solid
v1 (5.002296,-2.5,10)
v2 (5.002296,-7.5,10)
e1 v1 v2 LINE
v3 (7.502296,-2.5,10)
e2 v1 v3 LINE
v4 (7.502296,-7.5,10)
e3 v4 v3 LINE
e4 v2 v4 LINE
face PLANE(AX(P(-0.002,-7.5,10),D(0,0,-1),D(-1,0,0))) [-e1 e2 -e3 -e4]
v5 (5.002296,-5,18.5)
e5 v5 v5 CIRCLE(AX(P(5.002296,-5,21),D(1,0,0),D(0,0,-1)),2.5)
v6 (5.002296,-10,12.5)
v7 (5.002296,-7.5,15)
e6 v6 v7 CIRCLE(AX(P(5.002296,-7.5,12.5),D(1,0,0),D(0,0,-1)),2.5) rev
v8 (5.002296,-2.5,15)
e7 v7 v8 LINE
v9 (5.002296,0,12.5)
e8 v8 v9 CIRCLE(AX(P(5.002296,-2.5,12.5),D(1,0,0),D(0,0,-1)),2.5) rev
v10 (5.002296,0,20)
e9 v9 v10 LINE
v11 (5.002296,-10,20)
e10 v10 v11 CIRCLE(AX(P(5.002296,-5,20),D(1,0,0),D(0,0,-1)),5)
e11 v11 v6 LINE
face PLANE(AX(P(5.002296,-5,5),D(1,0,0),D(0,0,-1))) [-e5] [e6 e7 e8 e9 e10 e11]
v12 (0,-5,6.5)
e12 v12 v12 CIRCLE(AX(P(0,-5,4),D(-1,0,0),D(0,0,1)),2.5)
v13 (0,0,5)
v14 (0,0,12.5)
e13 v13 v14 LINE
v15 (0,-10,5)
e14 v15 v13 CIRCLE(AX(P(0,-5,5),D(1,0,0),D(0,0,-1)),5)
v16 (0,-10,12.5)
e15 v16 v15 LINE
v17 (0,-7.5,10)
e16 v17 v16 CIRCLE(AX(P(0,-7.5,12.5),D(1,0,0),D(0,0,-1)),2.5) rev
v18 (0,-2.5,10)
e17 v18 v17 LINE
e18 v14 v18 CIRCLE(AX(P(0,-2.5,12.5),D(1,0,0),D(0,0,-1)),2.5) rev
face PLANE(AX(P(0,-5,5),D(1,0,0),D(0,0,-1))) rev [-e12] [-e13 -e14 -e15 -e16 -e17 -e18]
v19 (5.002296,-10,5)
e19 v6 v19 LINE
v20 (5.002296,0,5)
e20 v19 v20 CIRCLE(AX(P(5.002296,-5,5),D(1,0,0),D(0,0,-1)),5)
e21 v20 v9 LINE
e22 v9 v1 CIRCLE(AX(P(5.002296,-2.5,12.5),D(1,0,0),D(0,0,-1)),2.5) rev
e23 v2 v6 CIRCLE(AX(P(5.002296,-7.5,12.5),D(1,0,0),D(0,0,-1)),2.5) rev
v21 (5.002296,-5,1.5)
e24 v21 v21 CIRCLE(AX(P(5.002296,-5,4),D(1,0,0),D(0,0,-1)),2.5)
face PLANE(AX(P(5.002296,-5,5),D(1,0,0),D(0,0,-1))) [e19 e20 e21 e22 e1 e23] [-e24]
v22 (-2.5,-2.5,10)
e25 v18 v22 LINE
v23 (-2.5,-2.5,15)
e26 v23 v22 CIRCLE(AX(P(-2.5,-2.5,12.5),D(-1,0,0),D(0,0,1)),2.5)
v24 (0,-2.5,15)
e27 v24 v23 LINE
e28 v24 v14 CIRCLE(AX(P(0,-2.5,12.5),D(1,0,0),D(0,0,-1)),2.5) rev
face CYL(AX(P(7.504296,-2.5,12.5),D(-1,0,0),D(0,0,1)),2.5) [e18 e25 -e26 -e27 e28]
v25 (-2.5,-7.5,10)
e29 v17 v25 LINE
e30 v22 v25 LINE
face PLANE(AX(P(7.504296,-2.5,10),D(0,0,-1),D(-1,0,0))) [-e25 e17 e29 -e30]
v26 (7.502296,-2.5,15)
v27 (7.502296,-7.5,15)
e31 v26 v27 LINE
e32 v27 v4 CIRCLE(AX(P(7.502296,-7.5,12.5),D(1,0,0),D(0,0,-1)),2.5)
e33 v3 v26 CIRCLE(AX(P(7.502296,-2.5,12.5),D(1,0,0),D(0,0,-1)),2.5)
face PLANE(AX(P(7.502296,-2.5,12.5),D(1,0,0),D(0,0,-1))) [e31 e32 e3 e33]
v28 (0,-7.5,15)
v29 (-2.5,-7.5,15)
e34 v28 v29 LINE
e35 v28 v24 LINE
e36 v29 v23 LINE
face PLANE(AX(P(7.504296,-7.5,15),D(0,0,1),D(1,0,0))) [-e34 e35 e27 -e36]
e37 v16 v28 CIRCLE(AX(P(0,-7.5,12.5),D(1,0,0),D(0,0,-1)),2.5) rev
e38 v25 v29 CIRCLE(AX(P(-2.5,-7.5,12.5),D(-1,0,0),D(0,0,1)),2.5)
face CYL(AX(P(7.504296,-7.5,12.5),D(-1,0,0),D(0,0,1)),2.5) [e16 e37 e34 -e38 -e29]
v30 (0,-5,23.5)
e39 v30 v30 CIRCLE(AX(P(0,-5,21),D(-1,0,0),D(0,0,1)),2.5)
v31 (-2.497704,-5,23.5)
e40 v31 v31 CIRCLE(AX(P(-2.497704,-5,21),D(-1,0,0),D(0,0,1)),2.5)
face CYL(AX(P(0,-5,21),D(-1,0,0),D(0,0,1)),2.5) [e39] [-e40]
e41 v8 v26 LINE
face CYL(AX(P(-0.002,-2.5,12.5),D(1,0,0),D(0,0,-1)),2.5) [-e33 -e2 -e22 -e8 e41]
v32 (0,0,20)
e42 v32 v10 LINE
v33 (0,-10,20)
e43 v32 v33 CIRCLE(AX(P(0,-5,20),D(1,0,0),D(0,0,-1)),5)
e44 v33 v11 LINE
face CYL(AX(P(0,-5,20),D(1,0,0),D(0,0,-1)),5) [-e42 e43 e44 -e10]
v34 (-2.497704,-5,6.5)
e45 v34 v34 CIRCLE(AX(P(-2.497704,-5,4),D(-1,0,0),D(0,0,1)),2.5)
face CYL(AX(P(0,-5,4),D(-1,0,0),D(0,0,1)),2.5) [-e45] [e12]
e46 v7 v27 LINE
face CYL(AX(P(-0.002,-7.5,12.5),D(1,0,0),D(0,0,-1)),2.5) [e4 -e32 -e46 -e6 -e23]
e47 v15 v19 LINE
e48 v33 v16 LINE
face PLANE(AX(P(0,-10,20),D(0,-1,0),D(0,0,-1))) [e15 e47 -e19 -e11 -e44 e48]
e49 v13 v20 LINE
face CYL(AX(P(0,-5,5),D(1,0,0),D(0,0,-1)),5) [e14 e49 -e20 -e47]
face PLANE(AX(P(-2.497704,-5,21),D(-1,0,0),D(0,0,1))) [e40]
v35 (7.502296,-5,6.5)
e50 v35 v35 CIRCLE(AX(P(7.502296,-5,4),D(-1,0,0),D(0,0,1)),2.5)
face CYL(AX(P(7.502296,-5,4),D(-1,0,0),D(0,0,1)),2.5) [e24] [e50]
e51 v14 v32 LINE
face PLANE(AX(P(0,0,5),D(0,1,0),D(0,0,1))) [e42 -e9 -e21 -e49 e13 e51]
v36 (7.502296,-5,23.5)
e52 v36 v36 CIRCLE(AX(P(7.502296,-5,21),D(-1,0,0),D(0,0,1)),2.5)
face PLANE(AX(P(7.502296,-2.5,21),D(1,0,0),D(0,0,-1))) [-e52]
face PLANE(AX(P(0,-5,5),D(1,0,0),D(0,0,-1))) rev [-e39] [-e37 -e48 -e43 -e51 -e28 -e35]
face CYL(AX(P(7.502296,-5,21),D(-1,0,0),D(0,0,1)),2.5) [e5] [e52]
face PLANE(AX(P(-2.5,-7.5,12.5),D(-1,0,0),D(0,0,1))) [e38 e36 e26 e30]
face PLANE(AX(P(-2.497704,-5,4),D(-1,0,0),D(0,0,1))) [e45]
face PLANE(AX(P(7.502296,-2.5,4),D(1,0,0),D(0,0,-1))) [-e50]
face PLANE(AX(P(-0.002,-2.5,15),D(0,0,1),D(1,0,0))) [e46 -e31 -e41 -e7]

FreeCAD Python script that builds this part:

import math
import FreeCAD as App
import Part
import Sketcher
from FreeCAD import Vector
Q = App.Units.Quantity

doc = App.newDocument("Part")
body = doc.addObject("PartDesign::Body", "Body")

sketch1 = body.newObject("Sketcher::SketchObject", "Sketch")
sketch1.AttachmentSupport = (doc.getObject("YZ_Plane"), [""])
sketch1.MapMode = "FlatFace"
sketch1.AttachmentOffset = App.Placement(Vector(0, 0, 5.002296), App.Rotation())
sketch1.addGeometry(Part.LineSegment(Vector(0, 5, 0), Vector(0, 20, 0)), False)
sketch1.addGeometry(Part.ArcOfCircle(Part.Circle(Vector(-5, 20, 0), Vector(0, 0, 1), 5), math.radians(0), math.radians(180)), False)
sketch1.addGeometry(Part.LineSegment(Vector(-10, 20, 0), Vector(-10, 5, 0)), False)
sketch1.addGeometry(Part.ArcOfCircle(Part.Circle(Vector(-5, 5, 0), Vector(0, 0, 1), 5), math.radians(180), math.radians(360)), False)
sketch1.addConstraint(Sketcher.Constraint("Tangent", 0, 2, 1, 1))
sketch1.addConstraint(Sketcher.Constraint("Tangent", 1, 2, 2, 1))
sketch1.addConstraint(Sketcher.Constraint("Tangent", 2, 2, 3, 1))
sketch1.addConstraint(Sketcher.Constraint("Tangent", 3, 2, 0, 1))
sketch1.addConstraint(Sketcher.Constraint("Vertical", 0))
sketch1.addConstraint(Sketcher.Constraint("Vertical", 2))
sketch1.addConstraint(Sketcher.Constraint("PointOnObject", 0, 2, -2))
sketch1.addConstraint(Sketcher.Constraint("Radius", 1, Q("5 mm")))
sketch1.addConstraint(Sketcher.Constraint("DistanceY", 0, 1, 0, 2, Q("15 mm")))
sketch1.addConstraint(Sketcher.Constraint("DistanceY", -1, 1, 1, 3, Q("20 mm")))
pad1 = body.newObject("PartDesign::Pad", "Pad")
pad1.Profile = sketch1
pad1.Length = 5.002296
pad1.Reversed = True

sketch2 = body.newObject("Sketcher::SketchObject", "Sketch001")
sketch2.AttachmentSupport = (doc.getObject("YZ_Plane"), [""])
sketch2.MapMode = "FlatFace"
sketch2.AttachmentOffset = App.Placement(Vector(0, 0, 7.502296), App.Rotation())
sketch2.addGeometry(Part.LineSegment(Vector(-2.5, 15, 0), Vector(-7.5, 15, 0)), False)
sketch2.addGeometry(Part.ArcOfCircle(Part.Circle(Vector(-7.5, 12.5, 0), Vector(0, 0, 1), 2.5), math.radians(90), math.radians(270)), False)
sketch2.addGeometry(Part.LineSegment(Vector(-7.5, 10, 0), Vector(-2.5, 10, 0)), False)
sketch2.addGeometry(Part.ArcOfCircle(Part.Circle(Vector(-2.5, 12.5, 0), Vector(0, 0, 1), 2.5), math.radians(-90), math.radians(90)), False)
sketch2.addConstraint(Sketcher.Constraint("Tangent", 0, 2, 1, 1))
sketch2.addConstraint(Sketcher.Constraint("Tangent", 1, 2, 2, 1))
sketch2.addConstraint(Sketcher.Constraint("Tangent", 2, 2, 3, 1))
sketch2.addConstraint(Sketcher.Constraint("Tangent", 3, 2, 0, 1))
sketch2.addConstraint(Sketcher.Constraint("Horizontal", 0))
sketch2.addConstraint(Sketcher.Constraint("Horizontal", 2))
sketch2.addConstraint(Sketcher.Constraint("Radius", 1, Q("2.5 mm")))
sketch2.addConstraint(Sketcher.Constraint("DistanceX", 0, 2, 0, 1, Q("5 mm")))
sketch2.addConstraint(Sketcher.Constraint("DistanceY", -1, 1, 0, 2, Q("15 mm")))
sketch2.addConstraint(Sketcher.Constraint("DistanceX", 1, 3, -1, 1, Q("7.5 mm")))
pad2 = body.newObject("PartDesign::Pad", "Pad001")
pad2.Profile = sketch2
pad2.Type = "UpToFirst"
pad2.Reversed = True

sketch3 = body.newObject("Sketcher::SketchObject", "Sketch002")
sketch3.AttachmentSupport = (doc.getObject("YZ_Plane"), [""])
sketch3.MapMode = "FlatFace"
sketch3.AttachmentOffset = App.Placement(Vector(0, 0, -2.5), App.Rotation())
sketch3.addGeometry(Part.LineSegment(Vector(-7.5, 15, 0), Vector(-2.5, 15, 0)), False)
sketch3.addGeometry(Part.ArcOfCircle(Part.Circle(Vector(-2.5, 12.5, 0), Vector(0, 0, 1), 2.5), math.radians(-90), math.radians(90)), False)
sketch3.addGeometry(Part.LineSegment(Vector(-2.5, 10, 0), Vector(-7.5, 10, 0)), False)
sketch3.addGeometry(Part.ArcOfCircle(Part.Circle(Vector(-7.5, 12.5, 0), Vector(0, 0, 1), 2.5), math.radians(90), math.radians(270)), False)
sketch3.addConstraint(Sketcher.Constraint("Tangent", 0, 2, 1, 2))
sketch3.addConstraint(Sketcher.Constraint("Tangent", 1, 1, 2, 1))
sketch3.addConstraint(Sketcher.Constraint("Tangent", 2, 2, 3, 2))
sketch3.addConstraint(Sketcher.Constraint("Tangent", 3, 1, 0, 1))
sketch3.addConstraint(Sketcher.Constraint("Horizontal", 0))
sketch3.addConstraint(Sketcher.Constraint("Horizontal", 2))
sketch3.addConstraint(Sketcher.Constraint("Radius", 1, Q("2.5 mm")))
sketch3.addConstraint(Sketcher.Constraint("DistanceX", 0, 1, 0, 2, Q("5 mm")))
sketch3.addConstraint(Sketcher.Constraint("DistanceY", -1, 1, 0, 2, Q("15 mm")))
sketch3.addConstraint(Sketcher.Constraint("DistanceX", 1, 3, -1, 1, Q("2.5 mm")))
pad3 = body.newObject("PartDesign::Pad", "Pad002")
pad3.Profile = sketch3
pad3.Type = "UpToFirst"

sketch4 = body.newObject("Sketcher::SketchObject", "Sketch003")
sketch4.AttachmentSupport = (doc.getObject("XY_Plane"), [""])
sketch4.MapMode = "FlatFace"
sketch4.AttachmentOffset = App.Placement(Vector(0, 0, 4), App.Rotation())
sketch4.addGeometry(Part.LineSegment(Vector(0, -2.5, 0), Vector(0, -5, 0)), False)
sketch4.addGeometry(Part.LineSegment(Vector(0, -5, 0), Vector(-2.5, -5, 0)), False)
sketch4.addGeometry(Part.LineSegment(Vector(-2.5, -5, 0), Vector(-2.5, -2.5, 0)), False)
sketch4.addGeometry(Part.LineSegment(Vector(-2.5, -2.5, 0), Vector(0, -2.5, 0)), False)
sketch4.addGeometry(Part.LineSegment(Vector(0, -5, 0), Vector(-2.5, -5, 0)), True)
sketch4.addConstraint(Sketcher.Constraint("Coincident", 0, 2, 1, 1))
sketch4.addConstraint(Sketcher.Constraint("Coincident", 1, 2, 2, 1))
sketch4.addConstraint(Sketcher.Constraint("Coincident", 2, 2, 3, 1))
sketch4.addConstraint(Sketcher.Constraint("Coincident", 3, 2, 0, 1))
sketch4.addConstraint(Sketcher.Constraint("Vertical", 0))
sketch4.addConstraint(Sketcher.Constraint("Horizontal", 1))
sketch4.addConstraint(Sketcher.Constraint("Vertical", 2))
sketch4.addConstraint(Sketcher.Constraint("Horizontal", 3))
sketch4.addConstraint(Sketcher.Constraint("Horizontal", 4))
sketch4.addConstraint(Sketcher.Constraint("Coincident", 4, 1, 0, 2))
sketch4.addConstraint(Sketcher.Constraint("PointOnObject", 0, 2, -2))
sketch4.addConstraint(Sketcher.Constraint("Vertical", 2, 2, 4, 2))
sketch4.addConstraint(Sketcher.Constraint("DistanceY", 0, 2, 0, 1, Q("2.5 mm")))
sketch4.addConstraint(Sketcher.Constraint("DistanceY", 0, 2, -1, 1, Q("5 mm")))
sketch4.addConstraint(Sketcher.Constraint("DistanceX", 1, 2, 1, 1, Q("2.497704 mm")))
revolution = body.newObject("PartDesign::Revolution", "Revolution")
revolution.Profile = sketch4
revolution.ReferenceAxis = (sketch4, ["Axis0"])
revolution.Angle = 360

sketch5 = body.newObject("Sketcher::SketchObject", "Sketch004")
sketch5.AttachmentSupport = (doc.getObject("XY_Plane"), [""])
sketch5.MapMode = "FlatFace"
sketch5.AttachmentOffset = App.Placement(Vector(0, 0, 4), App.Rotation())
sketch5.addGeometry(Part.LineSegment(Vector(7.5, -2.5, 0), Vector(7.5, -5, 0)), False)
sketch5.addGeometry(Part.LineSegment(Vector(7.5, -5, 0), Vector(5, -5, 0)), False)
sketch5.addGeometry(Part.LineSegment(Vector(5, -5, 0), Vector(5, -2.5, 0)), False)
sketch5.addGeometry(Part.LineSegment(Vector(5, -2.5, 0), Vector(7.5, -2.5, 0)), False)
sketch5.addGeometry(Part.LineSegment(Vector(7.5, -5, 0), Vector(5, -5, 0)), True)
sketch5.addConstraint(Sketcher.Constraint("Coincident", 0, 2, 1, 1))
sketch5.addConstraint(Sketcher.Constraint("Coincident", 1, 2, 2, 1))
sketch5.addConstraint(Sketcher.Constraint("Coincident", 2, 2, 3, 1))
sketch5.addConstraint(Sketcher.Constraint("Coincident", 3, 2, 0, 1))
sketch5.addConstraint(Sketcher.Constraint("Vertical", 0))
sketch5.addConstraint(Sketcher.Constraint("Horizontal", 1))
sketch5.addConstraint(Sketcher.Constraint("Vertical", 2))
sketch5.addConstraint(Sketcher.Constraint("Horizontal", 3))
sketch5.addConstraint(Sketcher.Constraint("Horizontal", 4))
sketch5.addConstraint(Sketcher.Constraint("Coincident", 4, 1, 0, 2))
sketch5.addConstraint(Sketcher.Constraint("Vertical", 2, 2, 4, 2))
sketch5.addConstraint(Sketcher.Constraint("Equal", 4, 0))
sketch5.addConstraint(Sketcher.Constraint("DistanceX", 1, 2, 1, 1, Q("2.5 mm")))
sketch5.addConstraint(Sketcher.Constraint("DistanceY", 0, 2, -1, 1, Q("5 mm")))
sketch5.addConstraint(Sketcher.Constraint("DistanceX", -1, 1, 0, 2, Q("7.502296 mm")))
revolution2 = body.newObject("PartDesign::Revolution", "Revolution001")
revolution2.Profile = sketch5
revolution2.ReferenceAxis = (sketch5, ["Axis0"])
revolution2.Angle = 360

sketch6 = body.newObject("Sketcher::SketchObject", "Sketch005")
sketch6.AttachmentSupport = (doc.getObject("XY_Plane"), [""])
sketch6.MapMode = "FlatFace"
sketch6.AttachmentOffset = App.Placement(Vector(0, 0, 21), App.Rotation())
sketch6.addGeometry(Part.LineSegment(Vector(7.5, -2.5, 0), Vector(7.5, -5, 0)), False)
sketch6.addGeometry(Part.LineSegment(Vector(7.5, -5, 0), Vector(5, -5, 0)), False)
sketch6.addGeometry(Part.LineSegment(Vector(5, -5, 0), Vector(5, -2.5, 0)), False)
sketch6.addGeometry(Part.LineSegment(Vector(5, -2.5, 0), Vector(7.5, -2.5, 0)), False)
sketch6.addGeometry(Part.LineSegment(Vector(7.5, -5, 0), Vector(5, -5, 0)), True)
sketch6.addConstraint(Sketcher.Constraint("Coincident", 0, 2, 1, 1))
sketch6.addConstraint(Sketcher.Constraint("Coincident", 1, 2, 2, 1))
sketch6.addConstraint(Sketcher.Constraint("Coincident", 2, 2, 3, 1))
sketch6.addConstraint(Sketcher.Constraint("Coincident", 3, 2, 0, 1))
sketch6.addConstraint(Sketcher.Constraint("Vertical", 0))
sketch6.addConstraint(Sketcher.Constraint("Horizontal", 1))
sketch6.addConstraint(Sketcher.Constraint("Vertical", 2))
sketch6.addConstraint(Sketcher.Constraint("Horizontal", 3))
sketch6.addConstraint(Sketcher.Constraint("Horizontal", 4))
sketch6.addConstraint(Sketcher.Constraint("Coincident", 4, 1, 0, 2))
sketch6.addConstraint(Sketcher.Constraint("Vertical", 2, 2, 4, 2))
sketch6.addConstraint(Sketcher.Constraint("Equal", 4, 0))
sketch6.addConstraint(Sketcher.Constraint("DistanceX", 1, 2, 1, 1, Q("2.5 mm")))
sketch6.addConstraint(Sketcher.Constraint("DistanceY", 0, 2, -1, 1, Q("5 mm")))
sketch6.addConstraint(Sketcher.Constraint("DistanceX", -1, 1, 0, 2, Q("7.502296 mm")))
revolution3 = body.newObject("PartDesign::Revolution", "Revolution002")
revolution3.Profile = sketch6
revolution3.ReferenceAxis = (sketch6, ["Axis0"])
revolution3.Angle = 360

sketch7 = body.newObject("Sketcher::SketchObject", "Sketch006")
sketch7.AttachmentSupport = (doc.getObject("XY_Plane"), [""])
sketch7.MapMode = "FlatFace"
sketch7.AttachmentOffset = App.Placement(Vector(0, 0, 21), App.Rotation())
sketch7.addGeometry(Part.LineSegment(Vector(0, -2.5, 0), Vector(0, -5, 0)), False)
sketch7.addGeometry(Part.LineSegment(Vector(0, -5, 0), Vector(-2.5, -5, 0)), False)
sketch7.addGeometry(Part.LineSegment(Vector(-2.5, -5, 0), Vector(-2.5, -2.5, 0)), False)
sketch7.addGeometry(Part.LineSegment(Vector(-2.5, -2.5, 0), Vector(0, -2.5, 0)), False)
sketch7.addGeometry(Part.LineSegment(Vector(0, -5, 0), Vector(-2.5, -5, 0)), True)
sketch7.addConstraint(Sketcher.Constraint("Coincident", 0, 2, 1, 1))
sketch7.addConstraint(Sketcher.Constraint("Coincident", 1, 2, 2, 1))
sketch7.addConstraint(Sketcher.Constraint("Coincident", 2, 2, 3, 1))
sketch7.addConstraint(Sketcher.Constraint("Coincident", 3, 2, 0, 1))
sketch7.addConstraint(Sketcher.Constraint("Vertical", 0))
sketch7.addConstraint(Sketcher.Constraint("Horizontal", 1))
sketch7.addConstraint(Sketcher.Constraint("Vertical", 2))
sketch7.addConstraint(Sketcher.Constraint("Horizontal", 3))
sketch7.addConstraint(Sketcher.Constraint("Horizontal", 4))
sketch7.addConstraint(Sketcher.Constraint("Coincident", 4, 1, 0, 2))
sketch7.addConstraint(Sketcher.Constraint("PointOnObject", 0, 2, -2))
sketch7.addConstraint(Sketcher.Constraint("Vertical", 2, 2, 4, 2))
sketch7.addConstraint(Sketcher.Constraint("DistanceY", 0, 2, 0, 1, Q("2.5 mm")))
sketch7.addConstraint(Sketcher.Constraint("DistanceY", 0, 2, -1, 1, Q("5 mm")))
sketch7.addConstraint(Sketcher.Constraint("DistanceX", 1, 2, 1, 1, Q("2.497704 mm")))
revolution4 = body.newObject("PartDesign::Revolution", "Revolution003")
revolution4.Profile = sketch7
revolution4.ReferenceAxis = (sketch7, ["Axis0"])
revolution4.Angle = 360

doc.recompute()
